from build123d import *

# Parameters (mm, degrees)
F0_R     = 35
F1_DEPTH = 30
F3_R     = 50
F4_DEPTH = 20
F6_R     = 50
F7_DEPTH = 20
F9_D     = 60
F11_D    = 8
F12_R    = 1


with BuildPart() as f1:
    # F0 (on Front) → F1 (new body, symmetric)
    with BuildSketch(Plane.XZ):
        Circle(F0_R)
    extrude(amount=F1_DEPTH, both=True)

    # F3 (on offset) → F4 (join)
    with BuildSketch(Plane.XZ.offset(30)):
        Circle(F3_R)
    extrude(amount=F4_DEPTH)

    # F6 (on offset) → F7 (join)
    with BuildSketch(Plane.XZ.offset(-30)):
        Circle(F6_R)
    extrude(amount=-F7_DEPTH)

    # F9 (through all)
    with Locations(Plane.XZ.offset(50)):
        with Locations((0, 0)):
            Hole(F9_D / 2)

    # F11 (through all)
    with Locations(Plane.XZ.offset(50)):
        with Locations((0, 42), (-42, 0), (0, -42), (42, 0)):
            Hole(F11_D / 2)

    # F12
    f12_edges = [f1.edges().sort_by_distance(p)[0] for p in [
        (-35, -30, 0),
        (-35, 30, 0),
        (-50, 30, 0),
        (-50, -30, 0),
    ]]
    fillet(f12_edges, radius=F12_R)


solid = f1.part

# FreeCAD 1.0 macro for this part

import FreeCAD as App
import Part
import Sketcher

V = App.Vector


def edges_at(feature, points):
    """Names of the edges that pass closest to the given points."""
    edges = feature.Shape.Edges
    near = lambda p: min(range(len(edges)), key=lambda i: edges[i].distToShape(Part.Vertex(*p))[0])
    return sorted({f"Edge{near(p) + 1}" for p in points})

doc = App.newDocument("Part")
body = doc.addObject("PartDesign::Body", "Body")

sketch1 = doc.addObject("Sketcher::SketchObject", "Sketch")
body.addObject(sketch1)
sketch1.AttachmentSupport = (doc.XZ_Plane, [""])
sketch1.MapMode = "FlatFace"
sketch1.addGeometry(Part.Circle(V(0, 0, 0), V(0, 0, 1), 35), False)
sketch1.addConstraint([
    Sketcher.Constraint("Coincident", 0, 3, -1, 1),
    Sketcher.Constraint("Diameter", 0, 70.0),
])
pad1 = doc.addObject("PartDesign::Pad", "Pad")
body.addObject(pad1)
pad1.Profile = sketch1
pad1.Length = 60
pad1.Midplane = True

sketch2 = doc.addObject("Sketcher::SketchObject", "Sketch001")
body.addObject(sketch2)
sketch2.AttachmentSupport = (doc.XZ_Plane, [""])
sketch2.MapMode = "FlatFace"
sketch2.AttachmentOffset = App.Placement(V(0, 0, 30), App.Rotation())
sketch2.addGeometry(Part.Circle(V(0, 0, 0), V(0, 0, 1), 50), False)
sketch2.addConstraint([
    Sketcher.Constraint("Coincident", 0, 3, -1, 1),
    Sketcher.Constraint("Diameter", 0, 100.0),
])
pad2 = doc.addObject("PartDesign::Pad", "Pad001")
body.addObject(pad2)
pad2.Profile = sketch2
pad2.Length = 20

sketch3 = doc.addObject("Sketcher::SketchObject", "Sketch002")
body.addObject(sketch3)
sketch3.AttachmentSupport = (doc.XZ_Plane, [""])
sketch3.MapMode = "FlatFace"
sketch3.AttachmentOffset = App.Placement(V(0, 0, -30), App.Rotation())
sketch3.addGeometry(Part.Circle(V(0, 0, 0), V(0, 0, 1), 50), False)
sketch3.addConstraint([
    Sketcher.Constraint("Coincident", 0, 3, -1, 1),
    Sketcher.Constraint("Diameter", 0, 100.0),
])
pad3 = doc.addObject("PartDesign::Pad", "Pad002")
body.addObject(pad3)
pad3.Profile = sketch3
pad3.Length = 20
pad3.Reversed = True

sketch4 = doc.addObject("Sketcher::SketchObject", "Sketch003")
body.addObject(sketch4)
sketch4.AttachmentSupport = (doc.XZ_Plane, [""])
sketch4.MapMode = "FlatFace"
sketch4.AttachmentOffset = App.Placement(V(0, 0, 50), App.Rotation())
sketch4.addGeometry(Part.Circle(V(0, 0, 0), V(0, 0, 1), 30), False)
sketch4.addConstraint([
    Sketcher.Constraint("Coincident", 0, 3, -1, 1),
    Sketcher.Constraint("Diameter", 0, 60.0),
])
doc.recompute()
hole = doc.addObject("PartDesign::Hole", "Hole")
body.addObject(hole)
hole.Profile = sketch4
hole.ThreadType = "None"
hole.Diameter = 60
hole.DepthType = "ThroughAll"

sketch5 = doc.addObject("Sketcher::SketchObject", "Sketch004")
body.addObject(sketch5)
sketch5.AttachmentSupport = (doc.XZ_Plane, [""])
sketch5.MapMode = "FlatFace"
sketch5.AttachmentOffset = App.Placement(V(0, 0, 50), App.Rotation())
sketch5.addGeometry([
    Part.Circle(V(0, 42, 0), V(0, 0, 1), 4),
    Part.Circle(V(-42, 0, 0), V(0, 0, 1), 4),
    Part.Circle(V(0, -42, 0), V(0, 0, 1), 4),
    Part.Circle(V(42, 0, 0), V(0, 0, 1), 4),
], False)
sketch5.addConstraint([
    Sketcher.Constraint("Equal", 0, 1),
    Sketcher.Constraint("Equal", 1, 2),
    Sketcher.Constraint("Equal", 2, 3),
    Sketcher.Constraint("Symmetric", 0, 3, 2, 3, -1, 1),
    Sketcher.Constraint("Symmetric", 1, 3, 3, 3, -1, 1),
    Sketcher.Constraint("PointOnObject", 0, 3, -2),
    Sketcher.Constraint("PointOnObject", 1, 3, -1),
    Sketcher.Constraint("Diameter", 0, 8.0),
    Sketcher.Constraint("DistanceY", -1, 1, 0, 3, 42.0),
    Sketcher.Constraint("DistanceX", 1, 3, -1, 1, 42.0),
])
doc.recompute()
hole2 = doc.addObject("PartDesign::Hole", "Hole001")
body.addObject(hole2)
hole2.Profile = sketch5
hole2.ThreadType = "None"
hole2.Diameter = 8
hole2.DepthType = "ThroughAll"
doc.recompute()

fillet = doc.addObject("PartDesign::Fillet", "Fillet")
body.addObject(fillet)
fillet.Base = (hole2, edges_at(hole2, [
    (-35, -30, 0),
    (-35, 30, 0),
    (-50, 30, 0),
    (-50, -30, 0),
]))
fillet.Radius = 1

doc.recompute()
